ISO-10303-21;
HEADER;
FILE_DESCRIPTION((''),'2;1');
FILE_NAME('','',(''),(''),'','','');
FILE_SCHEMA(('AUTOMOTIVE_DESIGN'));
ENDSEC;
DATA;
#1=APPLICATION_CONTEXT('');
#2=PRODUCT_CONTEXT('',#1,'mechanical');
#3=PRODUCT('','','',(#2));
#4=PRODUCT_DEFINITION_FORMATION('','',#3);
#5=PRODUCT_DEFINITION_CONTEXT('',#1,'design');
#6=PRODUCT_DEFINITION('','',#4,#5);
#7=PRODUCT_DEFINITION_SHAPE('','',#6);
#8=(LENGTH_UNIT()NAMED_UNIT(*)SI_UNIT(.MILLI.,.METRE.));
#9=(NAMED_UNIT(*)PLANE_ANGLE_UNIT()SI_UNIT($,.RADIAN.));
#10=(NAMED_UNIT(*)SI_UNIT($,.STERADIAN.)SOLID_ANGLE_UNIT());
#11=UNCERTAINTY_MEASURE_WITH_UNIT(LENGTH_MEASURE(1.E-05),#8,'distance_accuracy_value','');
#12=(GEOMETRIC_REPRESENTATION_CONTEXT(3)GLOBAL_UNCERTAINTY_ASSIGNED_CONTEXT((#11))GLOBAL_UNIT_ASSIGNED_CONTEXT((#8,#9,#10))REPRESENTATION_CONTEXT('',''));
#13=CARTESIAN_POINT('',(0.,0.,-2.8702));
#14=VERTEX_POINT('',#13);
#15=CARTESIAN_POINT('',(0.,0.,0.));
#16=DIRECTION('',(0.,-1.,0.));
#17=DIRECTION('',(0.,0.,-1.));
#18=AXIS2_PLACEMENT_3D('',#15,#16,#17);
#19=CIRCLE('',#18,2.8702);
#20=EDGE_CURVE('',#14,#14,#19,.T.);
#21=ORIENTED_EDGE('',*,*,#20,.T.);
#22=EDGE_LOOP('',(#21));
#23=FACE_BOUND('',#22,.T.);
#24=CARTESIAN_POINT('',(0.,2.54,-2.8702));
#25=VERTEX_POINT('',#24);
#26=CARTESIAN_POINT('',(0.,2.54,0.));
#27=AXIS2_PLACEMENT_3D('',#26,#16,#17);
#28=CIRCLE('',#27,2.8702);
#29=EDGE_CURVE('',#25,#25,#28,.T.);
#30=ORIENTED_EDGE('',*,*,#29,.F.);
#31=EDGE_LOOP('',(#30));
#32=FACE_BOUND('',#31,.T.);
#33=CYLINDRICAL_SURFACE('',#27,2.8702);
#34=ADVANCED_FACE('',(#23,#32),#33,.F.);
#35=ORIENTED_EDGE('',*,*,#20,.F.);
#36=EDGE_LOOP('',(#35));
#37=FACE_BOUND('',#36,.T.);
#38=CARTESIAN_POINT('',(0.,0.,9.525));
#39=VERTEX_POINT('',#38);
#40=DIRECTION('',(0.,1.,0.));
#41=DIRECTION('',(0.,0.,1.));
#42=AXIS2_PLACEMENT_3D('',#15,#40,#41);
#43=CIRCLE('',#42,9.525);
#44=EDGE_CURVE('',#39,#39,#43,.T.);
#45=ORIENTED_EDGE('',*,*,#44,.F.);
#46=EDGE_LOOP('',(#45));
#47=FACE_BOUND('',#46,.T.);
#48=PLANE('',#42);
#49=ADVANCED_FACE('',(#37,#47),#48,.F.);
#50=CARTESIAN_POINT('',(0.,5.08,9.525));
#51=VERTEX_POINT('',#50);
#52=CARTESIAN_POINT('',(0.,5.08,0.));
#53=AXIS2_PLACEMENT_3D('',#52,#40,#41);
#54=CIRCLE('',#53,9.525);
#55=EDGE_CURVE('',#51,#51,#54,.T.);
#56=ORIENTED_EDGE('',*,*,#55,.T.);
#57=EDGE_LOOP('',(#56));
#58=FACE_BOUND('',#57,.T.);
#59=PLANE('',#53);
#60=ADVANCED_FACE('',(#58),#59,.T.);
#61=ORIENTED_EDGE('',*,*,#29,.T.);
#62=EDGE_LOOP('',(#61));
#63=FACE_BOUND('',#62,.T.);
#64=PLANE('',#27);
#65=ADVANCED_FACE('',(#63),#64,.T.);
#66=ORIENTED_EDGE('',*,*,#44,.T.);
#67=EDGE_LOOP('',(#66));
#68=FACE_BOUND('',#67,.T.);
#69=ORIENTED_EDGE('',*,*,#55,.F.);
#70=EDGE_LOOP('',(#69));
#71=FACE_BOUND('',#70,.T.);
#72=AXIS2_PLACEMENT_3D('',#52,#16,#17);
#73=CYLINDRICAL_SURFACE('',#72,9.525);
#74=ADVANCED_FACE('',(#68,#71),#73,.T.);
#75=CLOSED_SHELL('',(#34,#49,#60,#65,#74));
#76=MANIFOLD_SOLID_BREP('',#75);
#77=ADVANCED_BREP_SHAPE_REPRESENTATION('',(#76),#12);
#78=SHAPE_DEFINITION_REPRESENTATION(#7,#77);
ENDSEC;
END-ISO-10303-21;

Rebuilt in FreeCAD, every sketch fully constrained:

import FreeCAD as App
import Part
import Sketcher

V = App.Vector
Q = App.Units.Quantity

doc = App.newDocument("Part")
body = doc.addObject("PartDesign::Body", "Body")

sketch1 = body.newObject("Sketcher::SketchObject", "Sketch")
sketch1.AttachmentSupport = (doc.getObject("XZ_Plane"), [""])
sketch1.MapMode = "FlatFace"
sketch1.addGeometry(Part.Circle(V(0, 0, 0), V(0, 0, 1), 9.525), False)
sketch1.addConstraint([
    Sketcher.Constraint("Coincident", 0, 3, -1, 1),
    Sketcher.Constraint("Diameter", 0, Q("0.75 in")),
])
pad1 = body.newObject("PartDesign::Pad", "Pad")
pad1.Profile = sketch1
pad1.Length = Q("0.2 in")
pad1.Reversed = True

sketch2 = body.newObject("Sketcher::SketchObject", "Sketch001")
sketch2.AttachmentSupport = (doc.getObject("XZ_Plane"), [""])
sketch2.MapMode = "FlatFace"
sketch2.addGeometry(Part.Circle(V(0, 0, 0), V(0, 0, 1), 2.8702), False)
sketch2.addConstraint([
    Sketcher.Constraint("Coincident", 0, 3, -1, 1),
    Sketcher.Constraint("Diameter", 0, Q("0.226 in")),
])
pocket1 = body.newObject("PartDesign::Pocket", "Pocket")
pocket1.Profile = sketch2
pocket1.Length = Q("0.1 in")

doc.recompute()
